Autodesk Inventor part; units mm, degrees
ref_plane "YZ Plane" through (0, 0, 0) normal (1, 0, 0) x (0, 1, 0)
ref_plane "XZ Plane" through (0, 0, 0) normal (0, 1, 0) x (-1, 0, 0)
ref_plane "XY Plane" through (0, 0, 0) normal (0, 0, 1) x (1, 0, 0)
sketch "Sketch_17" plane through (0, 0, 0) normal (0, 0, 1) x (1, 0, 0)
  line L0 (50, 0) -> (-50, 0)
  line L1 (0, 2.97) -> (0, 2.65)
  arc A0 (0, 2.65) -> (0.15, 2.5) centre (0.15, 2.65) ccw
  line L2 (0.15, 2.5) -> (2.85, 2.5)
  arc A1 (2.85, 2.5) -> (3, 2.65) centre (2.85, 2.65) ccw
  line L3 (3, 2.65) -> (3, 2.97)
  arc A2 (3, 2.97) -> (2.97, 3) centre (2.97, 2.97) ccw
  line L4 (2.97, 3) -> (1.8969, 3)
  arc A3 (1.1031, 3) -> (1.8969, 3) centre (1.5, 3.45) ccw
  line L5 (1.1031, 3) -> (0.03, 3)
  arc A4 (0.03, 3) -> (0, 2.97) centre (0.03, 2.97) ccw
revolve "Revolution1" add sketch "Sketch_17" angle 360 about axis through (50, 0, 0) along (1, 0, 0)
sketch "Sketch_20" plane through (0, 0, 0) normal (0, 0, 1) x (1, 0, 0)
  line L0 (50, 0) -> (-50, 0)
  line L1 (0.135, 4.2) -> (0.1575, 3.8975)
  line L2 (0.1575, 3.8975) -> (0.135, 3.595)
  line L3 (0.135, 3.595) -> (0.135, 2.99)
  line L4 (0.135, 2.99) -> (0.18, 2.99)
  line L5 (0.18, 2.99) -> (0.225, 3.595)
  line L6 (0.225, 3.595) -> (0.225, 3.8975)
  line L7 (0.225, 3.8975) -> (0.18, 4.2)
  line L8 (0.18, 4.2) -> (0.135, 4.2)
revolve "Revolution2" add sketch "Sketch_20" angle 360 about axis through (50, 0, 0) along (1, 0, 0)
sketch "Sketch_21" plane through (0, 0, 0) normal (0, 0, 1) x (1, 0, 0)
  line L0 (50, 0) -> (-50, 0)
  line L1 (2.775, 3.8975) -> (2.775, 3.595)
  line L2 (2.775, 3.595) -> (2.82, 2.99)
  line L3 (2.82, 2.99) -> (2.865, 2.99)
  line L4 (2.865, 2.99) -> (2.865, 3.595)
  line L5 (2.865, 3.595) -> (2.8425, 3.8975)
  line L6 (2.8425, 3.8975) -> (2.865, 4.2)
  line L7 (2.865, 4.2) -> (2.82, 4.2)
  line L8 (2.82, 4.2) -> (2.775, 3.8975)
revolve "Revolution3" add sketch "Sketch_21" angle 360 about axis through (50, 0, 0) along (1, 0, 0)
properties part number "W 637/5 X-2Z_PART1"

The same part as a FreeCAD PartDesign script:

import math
import FreeCAD as App
import Part
import Sketcher
from FreeCAD import Vector


def add_polygon(sketch, points):
    """Adds a closed chain of lines whose ends are joined by coincident constraints."""
    first, n = sketch.GeometryCount, len(points)
    for a, b in zip(points, points[1:] + points[:1]):
        sketch.addGeometry(Part.LineSegment(App.Vector(*a, 0), App.Vector(*b, 0)), False)
    for i in range(n):
        sketch.addConstraint(Sketcher.Constraint("Coincident", first + i, 2, first + (i + 1) % n, 1))

doc = App.newDocument("Part")
params = doc.addObject("Spreadsheet::Sheet", "Params")
for row, (alias, value) in enumerate([
    ("sketch1_radius", "0.6 mm"),
    ("sketch1_radius2", "0.03 mm"),
    ("sketch1_radius3", "0.15 mm"),
    ("sketch1_width", "2.7 mm"),
    ("sketch1_height", "0.32 mm"),
    ("revolution_angle", "360 deg"),
    ("revolution2_angle", "360 deg"),
    ("revolution3_angle", "360 deg"),
], start=1):
    params.set(f"A{row}", alias)
    params.set(f"B{row}", "=" + value)
    params.setAlias(f"B{row}", alias)

body = doc.addObject("PartDesign::Body", "Body")

# Sketch on XY plane
sketch1 = body.newObject("Sketcher::SketchObject", "Sketch")
sketch1.AttachmentSupport = (doc.getObject("XY_Plane"), [""])
sketch1.MapMode = "FlatFace"
sketch1.addGeometry([
    Part.ArcOfCircle(Part.Circle(Vector(0.03, 2.97, 0), Vector(0, 0, 1), 0.03), math.radians(90), math.radians(180)),  # 0
    Part.LineSegment(Vector(0, 2.97, 0), Vector(0, 2.65, 0)),  # 1
    Part.ArcOfCircle(Part.Circle(Vector(0.15, 2.65, 0), Vector(0, 0, 1), 0.15), math.radians(180), math.radians(270)),  # 2
    Part.LineSegment(Vector(0.15, 2.5, 0), Vector(2.85, 2.5, 0)),  # 3
    Part.ArcOfCircle(Part.Circle(Vector(2.85, 2.65, 0), Vector(0, 0, 1), 0.15), math.radians(-90), math.radians(0)),  # 4
    Part.LineSegment(Vector(3, 2.65, 0), Vector(3, 2.97, 0)),  # 5
    Part.ArcOfCircle(Part.Circle(Vector(2.97, 2.97, 0), Vector(0, 0, 1), 0.03), math.radians(0), math.radians(90)),  # 6
    Part.LineSegment(Vector(2.97, 3, 0), Vector(1.897, 3, 0)),  # 7
    Part.ArcOfCircle(Part.Circle(Vector(1.5, 3.45, 0), Vector(0, 0, 1), 0.6), math.radians(-131), math.radians(-49)),  # 8
    Part.LineSegment(Vector(1.103, 3, 0), Vector(0.03, 3, 0)),  # 9
], False)
sketch1.addConstraint([
    Sketcher.Constraint("Tangent", 0, 2, 1, 1),
    Sketcher.Constraint("Tangent", 1, 2, 2, 1),
    Sketcher.Constraint("Tangent", 2, 2, 3, 1),
    Sketcher.Constraint("Tangent", 3, 2, 4, 1),
    Sketcher.Constraint("Tangent", 4, 2, 5, 1),
    Sketcher.Constraint("Tangent", 5, 2, 6, 1),
    Sketcher.Constraint("Tangent", 6, 2, 7, 1),
    Sketcher.Constraint("Coincident", 7, 2, 8, 2),
    Sketcher.Constraint("Coincident", 8, 1, 9, 1),
    Sketcher.Constraint("Tangent", 9, 2, 0, 1),
    Sketcher.Constraint("Vertical", 1),
    Sketcher.Constraint("Horizontal", 3),
    Sketcher.Constraint("Vertical", 5),
    Sketcher.Constraint("Horizontal", 7),
    Sketcher.Constraint("Horizontal", 9),
    Sketcher.Constraint("Equal", 2, 4),
    Sketcher.Constraint("Equal", 0, 6),
    Sketcher.Constraint("PointOnObject", 0, 2, -2),
    Sketcher.Constraint("Horizontal", 0, 3, 6, 3),
    Sketcher.Constraint("Equal", 7, 9),
    Sketcher.Constraint("Radius", 8, 0.6),
    Sketcher.Constraint("Radius", 0, 0.03),
    Sketcher.Constraint("Radius", 2, 0.15),
    Sketcher.Constraint("DistanceX", 3, 1, 3, 2, 2.7),
    Sketcher.Constraint("DistanceY", -1, 1, 6, 2, 3.0),
    Sketcher.Constraint("DistanceY", 1, 2, 1, 1, 0.32),
    Sketcher.Constraint("DistanceY", 2, 3, 8, 3, 0.8),
])
sketch1.setExpression("Constraints[20]", "Params.sketch1_radius")
sketch1.setExpression("Constraints[21]", "Params.sketch1_radius2")
sketch1.setExpression("Constraints[22]", "Params.sketch1_radius3")
sketch1.setExpression("Constraints[23]", "Params.sketch1_width")
sketch1.setExpression("Constraints[25]", "Params.sketch1_height")
revolution = body.newObject("PartDesign::Revolution", "Revolution")
revolution.Profile = sketch1
revolution.ReferenceAxis = (sketch1, ["H_Axis"])
revolution.setExpression("Angle", "Params.revolution_angle")

# Sketch on XY plane
sketch2 = body.newObject("Sketcher::SketchObject", "Sketch001")
sketch2.AttachmentSupport = (doc.getObject("XY_Plane"), [""])
sketch2.MapMode = "FlatFace"
add_polygon(sketch2, [(0.18, 4.2), (0.135, 4.2), (0.158, 3.897), (0.135, 3.595), (0.135, 2.99), (0.18, 2.99), (0.225, 3.595), (0.225, 3.897)])  # lines 0-7
sketch2.addConstraint([
    Sketcher.Constraint("Horizontal", 0),
    Sketcher.Constraint("Vertical", 3),
    Sketcher.Constraint("Horizontal", 4),
    Sketcher.Constraint("Vertical", 6),
    Sketcher.Constraint("Parallel", 2, 5),
    Sketcher.Constraint("Horizontal", 2, 2, 5, 2),
    Sketcher.Constraint("Horizontal", 1, 2, 6, 2),
    Sketcher.Constraint("Vertical", 0, 2, 2, 2),
    Sketcher.Constraint("Vertical", 4, 2, 7, 2),
    Sketcher.Constraint("Equal", 1, 2),
    Sketcher.Constraint("DistanceY", -1, 1, 0, 2, 4.2),
    Sketcher.Constraint("DistanceX", 0, 2, 0, 1, 0.045),
    Sketcher.Constraint("DistanceY", 3, 2, 3, 1, 0.605),
    Sketcher.Constraint("DistanceY", -1, 1, 3, 2, 2.99),
    Sketcher.Constraint("DistanceX", -1, 1, 4, 2, 0.18),
    Sketcher.Constraint("DistanceX", 2, 2, 5, 2, 0.09),
])
revolution2 = body.newObject("PartDesign::Revolution", "Revolution001")
revolution2.Profile = sketch2
revolution2.ReferenceAxis = (sketch2, ["H_Axis"])
revolution2.setExpression("Angle", "Params.revolution2_angle")

# Sketch on XY plane
sketch3 = body.newObject("Sketcher::SketchObject", "Sketch002")
sketch3.AttachmentSupport = (doc.getObject("XY_Plane"), [""])
sketch3.MapMode = "FlatFace"
add_polygon(sketch3, [(2.82, 4.2), (2.775, 3.897), (2.775, 3.595), (2.82, 2.99), (2.865, 2.99), (2.865, 3.595), (2.842, 3.897), (2.865, 4.2)])  # lines 0-7
sketch3.addConstraint([
    Sketcher.Constraint("Vertical", 1),
    Sketcher.Constraint("Horizontal", 3),
    Sketcher.Constraint("Vertical", 4),
    Sketcher.Constraint("Horizontal", 7),
    Sketcher.Constraint("Parallel", 2, 5),
    Sketcher.Constraint("Horizontal", 1, 2, 4, 2),
    Sketcher.Constraint("Horizontal", 0, 2, 5, 2),
    Sketcher.Constraint("Vertical", 4, 2, 6, 2),
    Sketcher.Constraint("Vertical", 2, 2, 7, 2),
    Sketcher.Constraint("Equal", 5, 6),
    Sketcher.Constraint("DistanceY", -1, 1, 6, 2, 4.2),
    Sketcher.Constraint("DistanceX", 3, 1, 3, 2, 0.045),
    Sketcher.Constraint("DistanceY", 4, 1, 4, 2, 0.605),
    Sketcher.Constraint("DistanceX", -1, 1, 2, 2, 2.82),
    Sketcher.Constraint("DistanceY", -1, 1, 2, 2, 2.99),
    Sketcher.Constraint("DistanceX", 1, 2, 3, 2, 0.09),
])
revolution3 = body.newObject("PartDesign::Revolution", "Revolution002")
revolution3.Profile = sketch3
revolution3.ReferenceAxis = (sketch3, ["H_Axis"])
revolution3.setExpression("Angle", "Params.revolution3_angle")

doc.recompute()
